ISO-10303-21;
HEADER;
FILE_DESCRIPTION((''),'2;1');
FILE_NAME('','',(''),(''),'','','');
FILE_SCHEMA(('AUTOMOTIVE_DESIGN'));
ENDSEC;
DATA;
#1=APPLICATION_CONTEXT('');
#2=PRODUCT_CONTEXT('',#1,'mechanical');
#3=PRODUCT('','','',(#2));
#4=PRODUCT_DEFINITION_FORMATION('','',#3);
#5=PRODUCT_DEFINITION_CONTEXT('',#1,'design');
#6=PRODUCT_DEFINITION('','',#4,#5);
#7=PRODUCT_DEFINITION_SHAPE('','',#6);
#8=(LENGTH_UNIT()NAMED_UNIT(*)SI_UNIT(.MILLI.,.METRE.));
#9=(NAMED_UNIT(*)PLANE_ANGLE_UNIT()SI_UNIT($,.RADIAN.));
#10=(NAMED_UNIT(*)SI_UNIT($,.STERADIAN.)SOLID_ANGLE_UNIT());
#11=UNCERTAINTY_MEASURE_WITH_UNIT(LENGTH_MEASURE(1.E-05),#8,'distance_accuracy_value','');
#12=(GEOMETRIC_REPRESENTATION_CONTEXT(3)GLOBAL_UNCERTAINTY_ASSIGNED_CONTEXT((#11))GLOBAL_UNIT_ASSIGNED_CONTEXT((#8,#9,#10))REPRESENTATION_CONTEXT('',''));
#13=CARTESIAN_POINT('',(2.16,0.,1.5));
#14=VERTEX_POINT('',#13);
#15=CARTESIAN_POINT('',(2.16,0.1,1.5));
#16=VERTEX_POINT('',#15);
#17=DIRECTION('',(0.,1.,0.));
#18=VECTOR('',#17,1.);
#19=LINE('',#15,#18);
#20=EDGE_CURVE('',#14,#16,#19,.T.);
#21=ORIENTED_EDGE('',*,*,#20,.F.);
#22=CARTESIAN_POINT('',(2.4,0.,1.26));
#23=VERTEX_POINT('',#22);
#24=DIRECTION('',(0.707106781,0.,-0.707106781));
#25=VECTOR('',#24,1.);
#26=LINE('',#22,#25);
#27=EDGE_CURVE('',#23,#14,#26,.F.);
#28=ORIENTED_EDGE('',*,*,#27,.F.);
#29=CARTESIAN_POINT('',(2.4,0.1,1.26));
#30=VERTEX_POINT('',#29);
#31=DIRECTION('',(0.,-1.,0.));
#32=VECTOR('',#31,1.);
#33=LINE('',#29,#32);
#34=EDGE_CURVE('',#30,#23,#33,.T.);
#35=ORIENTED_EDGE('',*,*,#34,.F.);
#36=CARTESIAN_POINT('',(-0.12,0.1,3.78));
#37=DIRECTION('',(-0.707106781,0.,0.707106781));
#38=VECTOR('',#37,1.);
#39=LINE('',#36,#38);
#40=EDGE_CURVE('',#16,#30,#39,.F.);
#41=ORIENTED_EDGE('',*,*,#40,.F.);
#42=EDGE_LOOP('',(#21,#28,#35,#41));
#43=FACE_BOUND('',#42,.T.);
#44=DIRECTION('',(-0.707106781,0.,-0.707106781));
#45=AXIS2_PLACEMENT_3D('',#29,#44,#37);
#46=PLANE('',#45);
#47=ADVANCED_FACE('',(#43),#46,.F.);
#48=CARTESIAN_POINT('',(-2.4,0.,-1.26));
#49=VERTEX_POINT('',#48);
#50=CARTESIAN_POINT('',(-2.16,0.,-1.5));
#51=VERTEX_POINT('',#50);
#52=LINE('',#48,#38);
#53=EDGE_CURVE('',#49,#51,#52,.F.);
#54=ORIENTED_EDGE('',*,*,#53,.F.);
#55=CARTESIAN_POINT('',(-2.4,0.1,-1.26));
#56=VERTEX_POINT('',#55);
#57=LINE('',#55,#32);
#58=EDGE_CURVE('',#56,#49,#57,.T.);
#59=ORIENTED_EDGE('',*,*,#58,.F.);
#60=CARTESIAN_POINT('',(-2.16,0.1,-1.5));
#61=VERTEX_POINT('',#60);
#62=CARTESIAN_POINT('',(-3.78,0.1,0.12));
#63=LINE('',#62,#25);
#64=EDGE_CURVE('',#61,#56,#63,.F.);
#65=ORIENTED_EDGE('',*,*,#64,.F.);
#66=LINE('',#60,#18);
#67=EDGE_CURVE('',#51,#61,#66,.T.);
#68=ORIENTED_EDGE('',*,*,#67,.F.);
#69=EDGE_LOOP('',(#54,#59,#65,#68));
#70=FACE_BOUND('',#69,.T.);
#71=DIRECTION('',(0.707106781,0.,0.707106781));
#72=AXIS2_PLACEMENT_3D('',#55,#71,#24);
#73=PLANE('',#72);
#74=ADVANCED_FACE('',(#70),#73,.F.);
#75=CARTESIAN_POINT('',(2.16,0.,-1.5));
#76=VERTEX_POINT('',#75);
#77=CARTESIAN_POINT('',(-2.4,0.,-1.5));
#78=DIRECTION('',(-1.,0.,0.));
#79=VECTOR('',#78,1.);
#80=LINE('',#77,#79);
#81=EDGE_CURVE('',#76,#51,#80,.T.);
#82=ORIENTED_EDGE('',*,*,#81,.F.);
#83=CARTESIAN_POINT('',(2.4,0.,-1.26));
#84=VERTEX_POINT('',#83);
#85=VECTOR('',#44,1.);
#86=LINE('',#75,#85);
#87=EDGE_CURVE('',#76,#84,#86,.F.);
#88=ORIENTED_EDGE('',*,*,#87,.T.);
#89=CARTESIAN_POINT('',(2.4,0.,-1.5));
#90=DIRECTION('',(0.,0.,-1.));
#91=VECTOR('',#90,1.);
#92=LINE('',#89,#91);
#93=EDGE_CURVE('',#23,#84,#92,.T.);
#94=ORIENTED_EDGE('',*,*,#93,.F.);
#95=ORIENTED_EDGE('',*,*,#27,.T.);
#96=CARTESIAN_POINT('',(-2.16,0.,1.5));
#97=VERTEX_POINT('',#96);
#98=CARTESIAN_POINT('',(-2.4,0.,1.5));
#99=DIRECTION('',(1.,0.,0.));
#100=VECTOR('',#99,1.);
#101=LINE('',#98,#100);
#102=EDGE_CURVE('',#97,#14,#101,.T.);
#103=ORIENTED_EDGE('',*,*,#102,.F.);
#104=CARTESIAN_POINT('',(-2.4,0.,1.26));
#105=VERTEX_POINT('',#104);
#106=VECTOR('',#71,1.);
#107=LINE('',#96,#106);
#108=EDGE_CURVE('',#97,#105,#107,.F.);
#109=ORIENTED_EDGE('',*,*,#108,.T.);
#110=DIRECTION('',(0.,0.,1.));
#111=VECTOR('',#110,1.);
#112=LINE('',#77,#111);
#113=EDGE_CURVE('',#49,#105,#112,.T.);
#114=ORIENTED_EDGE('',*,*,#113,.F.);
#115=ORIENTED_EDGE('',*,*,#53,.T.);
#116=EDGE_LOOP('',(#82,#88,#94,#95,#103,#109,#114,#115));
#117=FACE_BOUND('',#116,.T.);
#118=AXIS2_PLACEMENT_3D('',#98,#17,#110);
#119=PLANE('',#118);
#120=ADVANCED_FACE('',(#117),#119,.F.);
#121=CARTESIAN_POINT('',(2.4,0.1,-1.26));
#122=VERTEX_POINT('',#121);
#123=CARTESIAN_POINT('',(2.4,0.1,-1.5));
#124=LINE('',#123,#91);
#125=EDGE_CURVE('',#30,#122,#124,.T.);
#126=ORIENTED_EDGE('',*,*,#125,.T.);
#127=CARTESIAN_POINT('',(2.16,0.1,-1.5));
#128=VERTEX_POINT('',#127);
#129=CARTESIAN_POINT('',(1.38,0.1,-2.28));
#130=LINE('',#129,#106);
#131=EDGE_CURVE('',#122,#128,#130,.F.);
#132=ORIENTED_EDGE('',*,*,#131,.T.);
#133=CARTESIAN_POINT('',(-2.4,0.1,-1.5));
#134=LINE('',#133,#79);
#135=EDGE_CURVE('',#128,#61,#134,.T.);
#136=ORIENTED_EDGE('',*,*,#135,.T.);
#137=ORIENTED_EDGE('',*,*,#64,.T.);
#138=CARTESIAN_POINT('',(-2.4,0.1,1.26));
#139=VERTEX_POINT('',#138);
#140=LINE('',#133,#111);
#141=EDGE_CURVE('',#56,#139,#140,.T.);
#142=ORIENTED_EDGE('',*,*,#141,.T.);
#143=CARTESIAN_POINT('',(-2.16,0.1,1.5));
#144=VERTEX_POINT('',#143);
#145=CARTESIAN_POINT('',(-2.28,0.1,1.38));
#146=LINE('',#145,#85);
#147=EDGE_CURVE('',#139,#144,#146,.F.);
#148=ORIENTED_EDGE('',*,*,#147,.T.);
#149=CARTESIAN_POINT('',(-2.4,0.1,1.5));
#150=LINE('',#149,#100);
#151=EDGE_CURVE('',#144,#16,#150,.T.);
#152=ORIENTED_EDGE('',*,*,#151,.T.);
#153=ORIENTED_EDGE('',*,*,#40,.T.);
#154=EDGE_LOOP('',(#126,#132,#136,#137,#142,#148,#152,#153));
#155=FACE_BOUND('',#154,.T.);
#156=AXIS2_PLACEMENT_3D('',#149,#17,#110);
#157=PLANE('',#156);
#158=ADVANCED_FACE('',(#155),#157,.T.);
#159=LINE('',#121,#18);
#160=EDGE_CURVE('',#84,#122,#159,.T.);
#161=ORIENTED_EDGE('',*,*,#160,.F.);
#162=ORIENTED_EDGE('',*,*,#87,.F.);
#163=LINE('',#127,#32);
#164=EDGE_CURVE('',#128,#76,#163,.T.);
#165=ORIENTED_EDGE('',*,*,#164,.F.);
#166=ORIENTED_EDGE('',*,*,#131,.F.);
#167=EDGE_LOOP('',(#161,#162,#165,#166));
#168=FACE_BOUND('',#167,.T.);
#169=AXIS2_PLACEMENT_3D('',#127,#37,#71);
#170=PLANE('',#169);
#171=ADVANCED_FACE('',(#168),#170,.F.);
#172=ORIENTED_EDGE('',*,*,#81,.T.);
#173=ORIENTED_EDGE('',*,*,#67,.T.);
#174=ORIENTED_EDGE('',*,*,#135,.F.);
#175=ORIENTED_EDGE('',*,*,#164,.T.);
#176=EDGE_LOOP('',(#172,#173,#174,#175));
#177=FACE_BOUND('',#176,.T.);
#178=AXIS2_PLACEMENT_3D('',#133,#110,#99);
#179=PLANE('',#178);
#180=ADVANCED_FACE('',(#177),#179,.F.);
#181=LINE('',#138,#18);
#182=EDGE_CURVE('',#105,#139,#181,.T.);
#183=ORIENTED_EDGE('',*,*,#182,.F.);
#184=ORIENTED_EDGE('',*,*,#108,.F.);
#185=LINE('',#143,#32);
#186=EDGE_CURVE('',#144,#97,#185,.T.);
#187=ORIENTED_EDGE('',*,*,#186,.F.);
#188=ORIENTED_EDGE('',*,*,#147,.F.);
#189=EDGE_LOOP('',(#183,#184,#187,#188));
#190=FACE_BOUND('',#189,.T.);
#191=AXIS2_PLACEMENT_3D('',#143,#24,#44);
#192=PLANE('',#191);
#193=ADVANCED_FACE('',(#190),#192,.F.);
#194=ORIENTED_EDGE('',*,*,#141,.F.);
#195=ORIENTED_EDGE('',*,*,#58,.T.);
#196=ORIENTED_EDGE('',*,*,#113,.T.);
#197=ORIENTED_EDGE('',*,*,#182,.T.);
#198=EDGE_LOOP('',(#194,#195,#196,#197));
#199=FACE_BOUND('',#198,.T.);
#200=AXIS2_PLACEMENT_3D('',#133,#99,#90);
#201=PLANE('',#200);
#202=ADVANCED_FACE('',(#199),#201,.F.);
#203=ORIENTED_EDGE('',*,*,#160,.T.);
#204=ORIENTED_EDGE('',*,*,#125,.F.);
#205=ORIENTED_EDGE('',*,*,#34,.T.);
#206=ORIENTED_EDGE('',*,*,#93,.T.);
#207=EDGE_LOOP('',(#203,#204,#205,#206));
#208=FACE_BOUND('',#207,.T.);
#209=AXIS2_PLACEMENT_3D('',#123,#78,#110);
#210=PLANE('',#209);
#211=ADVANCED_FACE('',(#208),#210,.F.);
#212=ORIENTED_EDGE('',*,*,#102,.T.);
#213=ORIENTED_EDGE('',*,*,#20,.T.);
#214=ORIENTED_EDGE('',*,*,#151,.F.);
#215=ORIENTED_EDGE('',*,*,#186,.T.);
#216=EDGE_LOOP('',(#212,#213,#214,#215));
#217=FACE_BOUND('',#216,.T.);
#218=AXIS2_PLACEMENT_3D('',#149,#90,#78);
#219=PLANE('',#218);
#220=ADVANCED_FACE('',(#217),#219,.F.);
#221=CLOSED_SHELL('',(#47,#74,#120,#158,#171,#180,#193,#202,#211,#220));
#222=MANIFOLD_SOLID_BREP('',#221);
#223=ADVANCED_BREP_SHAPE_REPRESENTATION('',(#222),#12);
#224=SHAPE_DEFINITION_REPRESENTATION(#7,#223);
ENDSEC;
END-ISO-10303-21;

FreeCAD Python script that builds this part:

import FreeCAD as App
import Part
import Sketcher
from FreeCAD import Vector


def edges_at(feature, points):
    """Names of the edges that pass closest to the given points."""
    edges = feature.Shape.Edges
    near = lambda p: min(range(len(edges)), key=lambda i: edges[i].distToShape(Part.Vertex(*p))[0])
    return sorted({f"Edge{near(p) + 1}" for p in points})

doc = App.newDocument("Part")
body = doc.addObject("PartDesign::Body", "Body")

sketch1 = body.newObject("Sketcher::SketchObject", "Sketch")
sketch1.AttachmentSupport = (doc.getObject("XZ_Plane"), [""])
sketch1.MapMode = "FlatFace"
sketch1.addGeometry(Part.LineSegment(Vector(-2.4, -1.5, 0), Vector(-2.4, 1.5, 0)), False)
sketch1.addGeometry(Part.LineSegment(Vector(-2.4, 1.5, 0), Vector(2.4, 1.5, 0)), False)
sketch1.addGeometry(Part.LineSegment(Vector(2.4, 1.5, 0), Vector(2.4, -1.5, 0)), False)
sketch1.addGeometry(Part.LineSegment(Vector(2.4, -1.5, 0), Vector(-2.4, -1.5, 0)), False)
sketch1.addConstraint(Sketcher.Constraint("Coincident", 0, 2, 1, 1))
sketch1.addConstraint(Sketcher.Constraint("Coincident", 1, 2, 2, 1))
sketch1.addConstraint(Sketcher.Constraint("Coincident", 2, 2, 3, 1))
sketch1.addConstraint(Sketcher.Constraint("Coincident", 3, 2, 0, 1))
sketch1.addConstraint(Sketcher.Constraint("Vertical", 0))
sketch1.addConstraint(Sketcher.Constraint("Horizontal", 1))
sketch1.addConstraint(Sketcher.Constraint("Vertical", 2))
sketch1.addConstraint(Sketcher.Constraint("Horizontal", 3))
sketch1.addConstraint(Sketcher.Constraint("Symmetric", 0, 2, 2, 2, -1, 1))
sketch1.addConstraint(Sketcher.Constraint("DistanceY", 0, 1, 0, 2, 3.0))
sketch1.addConstraint(Sketcher.Constraint("DistanceX", 1, 1, 1, 2, 4.8))
pad1 = body.newObject("PartDesign::Pad", "Pad")
pad1.Profile = sketch1
pad1.Length = 0.1
pad1.Reversed = True
doc.recompute()

chamfer = body.newObject("PartDesign::Chamfer", "Chamfer")
chamfer.Base = (pad1, edges_at(pad1, [(2.4, 0.05, 1.5)]))
chamfer.Size = 0.24
doc.recompute()

chamfer2 = body.newObject("PartDesign::Chamfer", "Chamfer001")
chamfer2.Base = (chamfer, edges_at(chamfer, [(-2.4, 0.05, 1.5)]))
chamfer2.Size = 0.24
doc.recompute()

chamfer3 = body.newObject("PartDesign::Chamfer", "Chamfer002")
chamfer3.Base = (chamfer2, edges_at(chamfer2, [(2.4, 0.05, -1.5)]))
chamfer3.Size = 0.24
doc.recompute()

chamfer4 = body.newObject("PartDesign::Chamfer", "Chamfer003")
chamfer4.Base = (chamfer3, edges_at(chamfer3, [(-2.4, 0.05, -1.5)]))
chamfer4.Size = 0.24

doc.recompute()
